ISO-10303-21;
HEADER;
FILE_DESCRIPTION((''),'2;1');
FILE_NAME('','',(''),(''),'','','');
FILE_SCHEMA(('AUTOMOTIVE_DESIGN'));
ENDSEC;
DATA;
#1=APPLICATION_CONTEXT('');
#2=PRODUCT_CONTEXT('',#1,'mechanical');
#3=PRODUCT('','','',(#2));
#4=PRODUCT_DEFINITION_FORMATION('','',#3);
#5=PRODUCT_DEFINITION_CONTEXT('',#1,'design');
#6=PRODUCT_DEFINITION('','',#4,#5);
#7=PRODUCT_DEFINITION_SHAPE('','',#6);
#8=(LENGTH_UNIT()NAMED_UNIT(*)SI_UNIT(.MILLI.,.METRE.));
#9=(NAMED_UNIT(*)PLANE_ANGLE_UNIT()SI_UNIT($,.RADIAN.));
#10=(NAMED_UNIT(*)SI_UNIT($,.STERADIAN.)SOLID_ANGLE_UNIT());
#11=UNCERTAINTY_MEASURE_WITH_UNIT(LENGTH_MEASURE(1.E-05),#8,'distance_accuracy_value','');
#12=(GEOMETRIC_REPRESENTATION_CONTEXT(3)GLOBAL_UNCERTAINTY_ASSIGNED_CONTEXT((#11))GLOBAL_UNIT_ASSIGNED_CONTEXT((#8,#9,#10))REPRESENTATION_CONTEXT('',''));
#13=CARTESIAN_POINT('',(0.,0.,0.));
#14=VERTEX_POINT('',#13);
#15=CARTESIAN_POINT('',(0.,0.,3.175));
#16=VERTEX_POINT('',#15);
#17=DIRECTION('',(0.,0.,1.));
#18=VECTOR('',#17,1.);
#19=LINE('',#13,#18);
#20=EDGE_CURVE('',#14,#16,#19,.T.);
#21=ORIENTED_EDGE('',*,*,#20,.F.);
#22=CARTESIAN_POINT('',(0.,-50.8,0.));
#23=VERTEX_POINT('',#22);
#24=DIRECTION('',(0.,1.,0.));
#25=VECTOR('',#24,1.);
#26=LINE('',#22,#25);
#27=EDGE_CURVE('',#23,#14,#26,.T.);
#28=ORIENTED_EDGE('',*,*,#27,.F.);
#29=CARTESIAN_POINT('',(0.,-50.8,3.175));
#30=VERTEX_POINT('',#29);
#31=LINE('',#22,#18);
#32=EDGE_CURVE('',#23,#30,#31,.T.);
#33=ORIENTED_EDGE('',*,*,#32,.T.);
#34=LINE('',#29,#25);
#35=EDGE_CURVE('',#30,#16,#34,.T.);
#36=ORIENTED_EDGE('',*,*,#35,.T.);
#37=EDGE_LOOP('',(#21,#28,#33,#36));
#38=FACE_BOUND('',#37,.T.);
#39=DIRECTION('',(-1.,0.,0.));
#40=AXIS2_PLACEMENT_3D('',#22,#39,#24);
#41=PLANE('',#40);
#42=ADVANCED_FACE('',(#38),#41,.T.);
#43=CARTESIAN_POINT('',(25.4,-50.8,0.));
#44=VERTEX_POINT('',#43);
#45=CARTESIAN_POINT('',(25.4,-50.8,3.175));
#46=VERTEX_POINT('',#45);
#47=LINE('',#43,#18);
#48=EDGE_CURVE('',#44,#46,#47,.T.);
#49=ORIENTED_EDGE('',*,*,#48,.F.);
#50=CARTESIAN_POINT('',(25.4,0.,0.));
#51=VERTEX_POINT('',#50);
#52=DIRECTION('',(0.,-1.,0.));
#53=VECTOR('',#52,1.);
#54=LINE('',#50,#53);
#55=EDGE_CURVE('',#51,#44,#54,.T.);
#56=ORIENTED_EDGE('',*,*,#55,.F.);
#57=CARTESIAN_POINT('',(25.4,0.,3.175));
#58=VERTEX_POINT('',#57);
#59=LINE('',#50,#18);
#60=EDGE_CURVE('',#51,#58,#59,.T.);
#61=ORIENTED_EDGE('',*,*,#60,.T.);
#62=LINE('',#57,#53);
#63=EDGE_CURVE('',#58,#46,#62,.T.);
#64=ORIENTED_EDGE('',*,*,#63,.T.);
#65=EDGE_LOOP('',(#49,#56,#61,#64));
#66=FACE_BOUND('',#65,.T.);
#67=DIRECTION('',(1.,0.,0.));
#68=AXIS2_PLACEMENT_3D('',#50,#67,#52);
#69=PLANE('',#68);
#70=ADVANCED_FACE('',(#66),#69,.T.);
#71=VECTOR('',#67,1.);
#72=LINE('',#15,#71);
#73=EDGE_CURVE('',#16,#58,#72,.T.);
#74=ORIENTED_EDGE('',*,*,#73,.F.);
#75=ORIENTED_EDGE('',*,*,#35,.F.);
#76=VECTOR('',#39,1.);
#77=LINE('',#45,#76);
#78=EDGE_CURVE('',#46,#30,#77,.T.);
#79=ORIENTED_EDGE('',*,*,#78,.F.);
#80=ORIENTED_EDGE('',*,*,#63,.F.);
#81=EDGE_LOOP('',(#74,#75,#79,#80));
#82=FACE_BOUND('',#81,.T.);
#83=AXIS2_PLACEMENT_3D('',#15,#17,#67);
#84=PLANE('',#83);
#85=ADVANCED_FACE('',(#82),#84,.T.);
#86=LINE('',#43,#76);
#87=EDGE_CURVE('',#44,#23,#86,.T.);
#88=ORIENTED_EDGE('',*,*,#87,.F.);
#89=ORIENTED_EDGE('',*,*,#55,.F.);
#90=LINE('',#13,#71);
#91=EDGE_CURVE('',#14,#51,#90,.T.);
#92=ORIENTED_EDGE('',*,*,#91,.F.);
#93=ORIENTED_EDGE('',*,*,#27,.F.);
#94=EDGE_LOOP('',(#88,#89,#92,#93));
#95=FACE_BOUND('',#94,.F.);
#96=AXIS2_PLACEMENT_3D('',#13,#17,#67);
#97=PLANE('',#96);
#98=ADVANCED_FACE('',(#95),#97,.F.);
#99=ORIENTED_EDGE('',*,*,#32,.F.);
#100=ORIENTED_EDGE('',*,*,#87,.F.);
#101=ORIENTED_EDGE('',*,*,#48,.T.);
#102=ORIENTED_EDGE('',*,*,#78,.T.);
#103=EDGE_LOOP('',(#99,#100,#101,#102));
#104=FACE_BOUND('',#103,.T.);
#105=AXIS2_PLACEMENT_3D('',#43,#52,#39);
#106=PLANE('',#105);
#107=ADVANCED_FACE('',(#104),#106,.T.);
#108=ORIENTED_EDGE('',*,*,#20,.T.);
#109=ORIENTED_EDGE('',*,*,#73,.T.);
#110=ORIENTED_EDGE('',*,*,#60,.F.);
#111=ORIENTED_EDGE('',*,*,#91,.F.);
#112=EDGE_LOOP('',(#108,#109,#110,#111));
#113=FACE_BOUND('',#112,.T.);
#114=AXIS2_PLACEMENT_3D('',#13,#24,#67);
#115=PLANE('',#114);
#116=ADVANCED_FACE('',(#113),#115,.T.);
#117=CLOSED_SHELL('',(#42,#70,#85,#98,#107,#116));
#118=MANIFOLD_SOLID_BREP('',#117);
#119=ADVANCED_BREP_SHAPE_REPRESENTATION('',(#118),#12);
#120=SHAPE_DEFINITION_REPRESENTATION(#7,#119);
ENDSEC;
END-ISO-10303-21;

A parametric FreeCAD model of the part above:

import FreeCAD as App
import Part
import Sketcher
from FreeCAD import Vector
Q = App.Units.Quantity

doc = App.newDocument("Part")
body = doc.addObject("PartDesign::Body", "Body")

# Sketch on XY plane
sketch1 = body.newObject("Sketcher::SketchObject", "Sketch")
sketch1.AttachmentSupport = (doc.getObject("XY_Plane"), [""])
sketch1.MapMode = "FlatFace"
sketch1.addGeometry([
    Part.LineSegment(Vector(25.4, 0, 0), Vector(0, 0, 0)),
    Part.LineSegment(Vector(0, 0, 0), Vector(0, -50.8, 0)),
    Part.LineSegment(Vector(0, -50.8, 0), Vector(25.4, -50.8, 0)),
    Part.LineSegment(Vector(25.4, -50.8, 0), Vector(25.4, 0, 0)),
], False)
sketch1.addConstraint([
    Sketcher.Constraint("Coincident", 0, 2, 1, 1),
    Sketcher.Constraint("Coincident", 1, 2, 2, 1),
    Sketcher.Constraint("Coincident", 2, 2, 3, 1),
    Sketcher.Constraint("Coincident", 3, 2, 0, 1),
    Sketcher.Constraint("Horizontal", 0),
    Sketcher.Constraint("Vertical", 1),
    Sketcher.Constraint("Horizontal", 2),
    Sketcher.Constraint("Vertical", 3),
    Sketcher.Constraint("Coincident", 0, 2, -1, 1),
    Sketcher.Constraint("DistanceX", 0, 2, 0, 1, Q("1 in")),
    Sketcher.Constraint("DistanceY", 1, 2, 1, 1, Q("2 in")),
])
pad1 = body.newObject("PartDesign::Pad", "Pad")
pad1.Profile = sketch1
pad1.Length = Q("0.125 in")

doc.recompute()
